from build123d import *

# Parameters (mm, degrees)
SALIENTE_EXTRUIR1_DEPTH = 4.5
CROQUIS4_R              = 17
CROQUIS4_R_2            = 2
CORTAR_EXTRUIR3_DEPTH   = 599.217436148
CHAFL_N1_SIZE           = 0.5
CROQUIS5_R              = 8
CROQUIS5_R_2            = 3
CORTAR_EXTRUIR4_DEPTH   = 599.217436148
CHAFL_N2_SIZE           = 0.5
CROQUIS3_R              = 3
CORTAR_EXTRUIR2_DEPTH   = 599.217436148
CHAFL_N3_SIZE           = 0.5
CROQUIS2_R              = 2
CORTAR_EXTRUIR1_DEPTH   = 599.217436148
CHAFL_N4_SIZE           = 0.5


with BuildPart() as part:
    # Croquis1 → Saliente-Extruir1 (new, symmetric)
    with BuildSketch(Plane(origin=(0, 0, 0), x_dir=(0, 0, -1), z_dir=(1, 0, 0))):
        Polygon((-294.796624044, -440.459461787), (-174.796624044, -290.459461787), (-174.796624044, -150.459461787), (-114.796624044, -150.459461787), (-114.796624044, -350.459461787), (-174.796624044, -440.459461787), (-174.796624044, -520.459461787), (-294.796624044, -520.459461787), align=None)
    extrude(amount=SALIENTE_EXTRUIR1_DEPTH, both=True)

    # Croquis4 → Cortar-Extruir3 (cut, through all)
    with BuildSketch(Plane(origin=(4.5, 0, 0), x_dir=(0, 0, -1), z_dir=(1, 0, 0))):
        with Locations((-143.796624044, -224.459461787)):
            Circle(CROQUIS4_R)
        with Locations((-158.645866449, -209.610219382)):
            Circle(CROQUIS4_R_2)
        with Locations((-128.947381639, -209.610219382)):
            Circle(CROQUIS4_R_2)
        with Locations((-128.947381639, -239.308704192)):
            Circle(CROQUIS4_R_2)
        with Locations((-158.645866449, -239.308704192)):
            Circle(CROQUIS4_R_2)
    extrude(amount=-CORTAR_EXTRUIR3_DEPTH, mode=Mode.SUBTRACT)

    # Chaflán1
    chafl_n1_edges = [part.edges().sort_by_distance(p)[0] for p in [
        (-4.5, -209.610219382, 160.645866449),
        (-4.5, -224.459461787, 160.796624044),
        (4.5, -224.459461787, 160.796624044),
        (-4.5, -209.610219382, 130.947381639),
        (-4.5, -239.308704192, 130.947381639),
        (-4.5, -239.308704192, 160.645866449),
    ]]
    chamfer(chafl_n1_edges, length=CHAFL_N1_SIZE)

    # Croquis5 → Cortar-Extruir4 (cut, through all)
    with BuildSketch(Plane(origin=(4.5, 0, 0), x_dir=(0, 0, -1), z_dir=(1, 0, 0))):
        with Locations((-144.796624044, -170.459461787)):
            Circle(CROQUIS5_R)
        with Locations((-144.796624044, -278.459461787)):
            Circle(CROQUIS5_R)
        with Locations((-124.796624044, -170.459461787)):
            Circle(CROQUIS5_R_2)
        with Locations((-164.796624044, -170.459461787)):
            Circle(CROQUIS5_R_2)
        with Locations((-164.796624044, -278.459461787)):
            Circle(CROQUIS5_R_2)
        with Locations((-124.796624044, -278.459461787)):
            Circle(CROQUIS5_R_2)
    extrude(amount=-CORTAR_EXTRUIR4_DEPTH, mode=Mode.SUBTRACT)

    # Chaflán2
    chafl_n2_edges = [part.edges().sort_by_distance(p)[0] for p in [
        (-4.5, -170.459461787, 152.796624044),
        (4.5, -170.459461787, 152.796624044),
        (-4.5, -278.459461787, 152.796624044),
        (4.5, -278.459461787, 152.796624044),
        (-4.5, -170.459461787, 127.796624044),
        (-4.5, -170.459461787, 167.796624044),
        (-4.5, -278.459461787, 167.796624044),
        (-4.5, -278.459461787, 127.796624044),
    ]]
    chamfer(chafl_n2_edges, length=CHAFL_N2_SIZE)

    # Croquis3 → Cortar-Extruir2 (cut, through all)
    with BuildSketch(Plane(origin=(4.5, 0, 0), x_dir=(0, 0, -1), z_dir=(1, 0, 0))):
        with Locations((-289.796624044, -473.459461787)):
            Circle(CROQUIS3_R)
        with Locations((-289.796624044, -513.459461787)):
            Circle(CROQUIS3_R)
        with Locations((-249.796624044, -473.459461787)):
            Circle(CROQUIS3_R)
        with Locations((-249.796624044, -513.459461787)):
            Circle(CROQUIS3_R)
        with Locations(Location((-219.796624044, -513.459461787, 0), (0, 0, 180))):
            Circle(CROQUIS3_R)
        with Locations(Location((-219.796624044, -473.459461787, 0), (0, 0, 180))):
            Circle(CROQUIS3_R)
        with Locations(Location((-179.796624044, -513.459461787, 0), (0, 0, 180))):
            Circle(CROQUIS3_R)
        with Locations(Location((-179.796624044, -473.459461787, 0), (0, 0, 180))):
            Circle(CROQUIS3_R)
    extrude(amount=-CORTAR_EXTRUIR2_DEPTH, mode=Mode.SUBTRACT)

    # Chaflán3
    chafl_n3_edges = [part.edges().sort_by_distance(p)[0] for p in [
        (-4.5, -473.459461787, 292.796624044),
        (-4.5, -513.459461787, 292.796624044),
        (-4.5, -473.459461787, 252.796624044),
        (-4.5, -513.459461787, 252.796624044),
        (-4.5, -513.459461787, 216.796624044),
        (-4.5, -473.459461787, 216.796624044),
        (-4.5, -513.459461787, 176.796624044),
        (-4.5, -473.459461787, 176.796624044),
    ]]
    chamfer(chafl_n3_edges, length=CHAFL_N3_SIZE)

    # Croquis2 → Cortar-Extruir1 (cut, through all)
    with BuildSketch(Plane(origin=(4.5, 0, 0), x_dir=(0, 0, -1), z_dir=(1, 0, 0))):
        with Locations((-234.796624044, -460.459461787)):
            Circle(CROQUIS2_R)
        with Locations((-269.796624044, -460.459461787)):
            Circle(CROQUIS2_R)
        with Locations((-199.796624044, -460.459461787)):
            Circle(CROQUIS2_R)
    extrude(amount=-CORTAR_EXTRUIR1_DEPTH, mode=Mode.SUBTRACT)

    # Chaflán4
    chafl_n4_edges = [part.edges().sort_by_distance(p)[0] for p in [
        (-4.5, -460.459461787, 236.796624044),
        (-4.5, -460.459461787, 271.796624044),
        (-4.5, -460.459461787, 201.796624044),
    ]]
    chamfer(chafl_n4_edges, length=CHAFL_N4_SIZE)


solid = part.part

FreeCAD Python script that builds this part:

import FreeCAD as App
import Part
import Sketcher
from FreeCAD import Vector
Q = App.Units.Quantity


def edges_at(feature, points):
    """Names of the edges that pass closest to the given points."""
    edges = feature.Shape.Edges
    near = lambda p: min(range(len(edges)), key=lambda i: edges[i].distToShape(Part.Vertex(*p))[0])
    return sorted({f"Edge{near(p) + 1}" for p in points})


def add_polygon(sketch, points):
    """Adds a closed chain of lines whose ends are joined by coincident constraints."""
    first, n = sketch.GeometryCount, len(points)
    for a, b in zip(points, points[1:] + points[:1]):
        sketch.addGeometry(Part.LineSegment(App.Vector(*a, 0), App.Vector(*b, 0)), False)
    for i in range(n):
        sketch.addConstraint(Sketcher.Constraint("Coincident", first + i, 2, first + (i + 1) % n, 1))

doc = App.newDocument("Part")
body = doc.addObject("PartDesign::Body", "Body")

# Sketch on YZ plane
sketch1 = body.newObject("Sketcher::SketchObject", "Sketch")
sketch1.AttachmentSupport = (doc.getObject("YZ_Plane"), [""])
sketch1.MapMode = "FlatFace"
add_polygon(sketch1, [(-290.459462, 174.796624), (-440.459462, 294.796624), (-520.459462, 294.796624), (-520.459462, 174.796624), (-440.459462, 174.796624), (-350.459462, 114.796624), (-150.459462, 114.796624), (-150.459462, 174.796624)])  # lines 0-7
sketch1.addConstraint([
    Sketcher.Constraint("Horizontal", 1),
    Sketcher.Constraint("Vertical", 2),
    Sketcher.Constraint("Horizontal", 3),
    Sketcher.Constraint("Horizontal", 5),
    Sketcher.Constraint("Vertical", 6),
    Sketcher.Constraint("Horizontal", 7),
    Sketcher.Constraint("Horizontal", 3, 2, 6, 2),
    Sketcher.Constraint("Vertical", 0, 2, 3, 2),
    Sketcher.Constraint("DistanceX", 1, 2, 1, 1, Q("80 mm")),
    Sketcher.Constraint("DistanceX", 5, 1, 5, 2, Q("200 mm")),
    Sketcher.Constraint("DistanceX", 7, 2, 7, 1, Q("140 mm")),
    Sketcher.Constraint("DistanceY", 2, 2, 2, 1, Q("120 mm")),
    Sketcher.Constraint("DistanceY", 6, 1, 6, 2, Q("60 mm")),
    Sketcher.Constraint("DistanceX", 3, 2, 4, 2, Q("90 mm")),
    Sketcher.Constraint("DistanceX", 0, 2, -1, 1, Q("440.459462 mm")),
    Sketcher.Constraint("DistanceY", -1, 1, 0, 2, Q("294.796624 mm")),
])
pad1 = body.newObject("PartDesign::Pad", "Pad")
pad1.Profile = sketch1
pad1.Length = 9
pad1.Midplane = True

# Sketch on YZ plane
sketch2 = body.newObject("Sketcher::SketchObject", "Sketch001")
sketch2.AttachmentSupport = (doc.getObject("YZ_Plane"), [""])
sketch2.MapMode = "FlatFace"
sketch2.AttachmentOffset = App.Placement(Vector(0, 0, 4.5), App.Rotation())
sketch2.addGeometry([
    Part.Circle(Vector(-224.459462, 143.796624, 0), Vector(0, 0, 1), 17),  # 0
    Part.Circle(Vector(-209.610219, 158.645866, 0), Vector(0, 0, 1), 2),  # 1
    Part.Circle(Vector(-209.610219, 128.947382, 0), Vector(0, 0, 1), 2),  # 2
    Part.Circle(Vector(-239.308704, 128.947382, 0), Vector(0, 0, 1), 2),  # 3
    Part.Circle(Vector(-239.308704, 158.645866, 0), Vector(0, 0, 1), 2),  # 4
], False)
sketch2.addConstraint([
    Sketcher.Constraint("Equal", 1, 2),
    Sketcher.Constraint("Equal", 2, 3),
    Sketcher.Constraint("Equal", 3, 4),
    Sketcher.Constraint("Horizontal", 2, 3, 3, 3),
    Sketcher.Constraint("Horizontal", 1, 3, 4, 3),
    Sketcher.Constraint("Vertical", 1, 3, 2, 3),
    Sketcher.Constraint("Vertical", 3, 3, 4, 3),
    Sketcher.Constraint("Diameter", 0, Q("34 mm")),
    Sketcher.Constraint("Diameter", 1, Q("4 mm")),
    Sketcher.Constraint("DistanceX", 0, 3, -1, 1, Q("224.459462 mm")),
    Sketcher.Constraint("DistanceX", 1, 3, -1, 1, Q("209.610219 mm")),
    Sketcher.Constraint("DistanceY", -1, 1, 2, 3, Q("128.947382 mm")),
    Sketcher.Constraint("DistanceY", -1, 1, 0, 3, Q("143.796624 mm")),
    Sketcher.Constraint("DistanceY", -1, 1, 1, 3, Q("158.645866 mm")),
    Sketcher.Constraint("DistanceX", 3, 3, -1, 1, Q("239.308704 mm")),
])
pocket1 = body.newObject("PartDesign::Pocket", "Pocket")
pocket1.Profile = sketch2
pocket1.Type = "ThroughAll"
doc.recompute()

chamfer = body.newObject("PartDesign::Chamfer", "Chamfer")
chamfer.Base = (pocket1, edges_at(pocket1, [
    (-4.5, -209.61, 160.646),
    (-4.5, -224.459, 160.797),
    (4.5, -224.459, 160.797),
    (-4.5, -209.61, 130.947),
    (-4.5, -239.309, 130.947),
    (-4.5, -239.309, 160.646),
]))
chamfer.Size = 0.5

# Sketch on YZ plane
sketch3 = body.newObject("Sketcher::SketchObject", "Sketch002")
sketch3.AttachmentSupport = (doc.getObject("YZ_Plane"), [""])
sketch3.MapMode = "FlatFace"
sketch3.AttachmentOffset = App.Placement(Vector(0, 0, 4.5), App.Rotation())
sketch3.addGeometry([
    Part.Circle(Vector(-170.459462, 144.796624, 0), Vector(0, 0, 1), 8),  # 0
    Part.Circle(Vector(-278.459462, 144.796624, 0), Vector(0, 0, 1), 8),  # 1
    Part.Circle(Vector(-170.459462, 124.796624, 0), Vector(0, 0, 1), 3),  # 2
    Part.Circle(Vector(-170.459462, 164.796624, 0), Vector(0, 0, 1), 3),  # 3
    Part.Circle(Vector(-278.459462, 164.796624, 0), Vector(0, 0, 1), 3),  # 4
    Part.Circle(Vector(-278.459462, 124.796624, 0), Vector(0, 0, 1), 3),  # 5
], False)
sketch3.addConstraint([
    Sketcher.Constraint("Equal", 0, 1),
    Sketcher.Constraint("Equal", 2, 3),
    Sketcher.Constraint("Equal", 3, 4),
    Sketcher.Constraint("Equal", 4, 5),
    Sketcher.Constraint("Horizontal", 0, 3, 1, 3),
    Sketcher.Constraint("Horizontal", 3, 3, 4, 3),
    Sketcher.Constraint("Horizontal", 2, 3, 5, 3),
    Sketcher.Constraint("Vertical", 0, 3, 2, 3),
    Sketcher.Constraint("Vertical", 2, 3, 3, 3),
    Sketcher.Constraint("Vertical", 1, 3, 4, 3),
    Sketcher.Constraint("Vertical", 4, 3, 5, 3),
    Sketcher.Constraint("Diameter", 0, Q("16 mm")),
    Sketcher.Constraint("Diameter", 2, Q("6 mm")),
    Sketcher.Constraint("DistanceX", 1, 3, 0, 3, Q("108 mm")),
    Sketcher.Constraint("DistanceY", 2, 3, 0, 3, Q("20 mm")),
    Sketcher.Constraint("DistanceY", 0, 3, 3, 3, Q("20 mm")),
    Sketcher.Constraint("DistanceX", 0, 3, -1, 1, Q("170.459462 mm")),
    Sketcher.Constraint("DistanceY", -1, 1, 0, 3, Q("144.796624 mm")),
])
pocket2 = body.newObject("PartDesign::Pocket", "Pocket001")
pocket2.Profile = sketch3
pocket2.Type = "ThroughAll"
doc.recompute()

chamfer2 = body.newObject("PartDesign::Chamfer", "Chamfer001")
chamfer2.Base = (pocket2, edges_at(pocket2, [
    (-4.5, -170.459, 152.797),
    (4.5, -170.459, 152.797),
    (-4.5, -278.459, 152.797),
    (4.5, -278.459, 152.797),
    (-4.5, -170.459, 127.797),
    (-4.5, -170.459, 167.797),
    (-4.5, -278.459, 167.797),
    (-4.5, -278.459, 127.797),
]))
chamfer2.Size = 0.5

# Sketch on YZ plane
sketch4 = body.newObject("Sketcher::SketchObject", "Sketch003")
sketch4.AttachmentSupport = (doc.getObject("YZ_Plane"), [""])
sketch4.MapMode = "FlatFace"
sketch4.AttachmentOffset = App.Placement(Vector(0, 0, 4.5), App.Rotation())
sketch4.addGeometry([
    Part.Circle(Vector(-473.459462, 289.796624, 0), Vector(0, 0, 1), 3),  # 0
    Part.Circle(Vector(-513.459462, 289.796624, 0), Vector(0, 0, 1), 3),  # 1
    Part.Circle(Vector(-473.459462, 249.796624, 0), Vector(0, 0, 1), 3),  # 2
    Part.Circle(Vector(-513.459462, 249.796624, 0), Vector(0, 0, 1), 3),  # 3
    Part.Circle(Vector(-513.459462, 219.796624, 0), Vector(0, 0, 1), 3),  # 4
    Part.Circle(Vector(-473.459462, 219.796624, 0), Vector(0, 0, 1), 3),  # 5
    Part.Circle(Vector(-513.459462, 179.796624, 0), Vector(0, 0, 1), 3),  # 6
    Part.Circle(Vector(-473.459462, 179.796624, 0), Vector(0, 0, 1), 3),  # 7
], False)
sketch4.addConstraint([
    Sketcher.Constraint("Equal", 0, 1),
    Sketcher.Constraint("Equal", 1, 2),
    Sketcher.Constraint("Equal", 2, 3),
    Sketcher.Constraint("Equal", 3, 4),
    Sketcher.Constraint("Equal", 4, 5),
    Sketcher.Constraint("Equal", 5, 6),
    Sketcher.Constraint("Equal", 6, 7),
    Sketcher.Constraint("Horizontal", 0, 3, 1, 3),
    Sketcher.Constraint("Horizontal", 2, 3, 3, 3),
    Sketcher.Constraint("Horizontal", 4, 3, 5, 3),
    Sketcher.Constraint("Horizontal", 6, 3, 7, 3),
    Sketcher.Constraint("Vertical", 0, 3, 2, 3),
    Sketcher.Constraint("Vertical", 1, 3, 3, 3),
    Sketcher.Constraint("Vertical", 3, 3, 4, 3),
    Sketcher.Constraint("Vertical", 2, 3, 5, 3),
    Sketcher.Constraint("Vertical", 4, 3, 6, 3),
    Sketcher.Constraint("Vertical", 5, 3, 7, 3),
    Sketcher.Constraint("Diameter", 0, Q("6 mm")),
    Sketcher.Constraint("DistanceX", 1, 3, 0, 3, Q("40 mm")),
    Sketcher.Constraint("DistanceY", 2, 3, 0, 3, Q("40 mm")),
    Sketcher.Constraint("DistanceY", 4, 3, 3, 3, Q("30 mm")),
    Sketcher.Constraint("DistanceY", 6, 3, 4, 3, Q("40 mm")),
    Sketcher.Constraint("DistanceX", 0, 3, -1, 1, Q("473.459462 mm")),
    Sketcher.Constraint("DistanceY", -1, 1, 0, 3, Q("289.796624 mm")),
])
pocket3 = body.newObject("PartDesign::Pocket", "Pocket002")
pocket3.Profile = sketch4
pocket3.Type = "ThroughAll"
doc.recompute()

chamfer3 = body.newObject("PartDesign::Chamfer", "Chamfer002")
chamfer3.Base = (pocket3, edges_at(pocket3, [
    (-4.5, -473.459, 292.797),
    (-4.5, -513.459, 292.797),
    (-4.5, -473.459, 252.797),
    (-4.5, -513.459, 252.797),
    (-4.5, -513.459, 216.797),
    (-4.5, -473.459, 216.797),
    (-4.5, -513.459, 176.797),
    (-4.5, -473.459, 176.797),
]))
chamfer3.Size = 0.5

# Sketch on YZ plane
sketch5 = body.newObject("Sketcher::SketchObject", "Sketch004")
sketch5.AttachmentSupport = (doc.getObject("YZ_Plane"), [""])
sketch5.MapMode = "FlatFace"
sketch5.AttachmentOffset = App.Placement(Vector(0, 0, 4.5), App.Rotation())
sketch5.addGeometry([
    Part.Circle(Vector(-460.459462, 234.796624, 0), Vector(0, 0, 1), 2),
    Part.Circle(Vector(-460.459462, 269.796624, 0), Vector(0, 0, 1), 2),
    Part.Circle(Vector(-460.459462, 199.796624, 0), Vector(0, 0, 1), 2),
], False)
sketch5.addConstraint([
    Sketcher.Constraint("Equal", 0, 1),
    Sketcher.Constraint("Equal", 1, 2),
    Sketcher.Constraint("Vertical", 0, 3, 1, 3),
    Sketcher.Constraint("Vertical", 1, 3, 2, 3),
    Sketcher.Constraint("Diameter", 0, Q("4 mm")),
    Sketcher.Constraint("DistanceY", 0, 3, 1, 3, Q("35 mm")),
    Sketcher.Constraint("DistanceY", 2, 3, 0, 3, Q("35 mm")),
    Sketcher.Constraint("DistanceX", 0, 3, -1, 1, Q("460.459462 mm")),
    Sketcher.Constraint("DistanceY", -1, 1, 0, 3, Q("234.796624 mm")),
])
pocket4 = body.newObject("PartDesign::Pocket", "Pocket003")
pocket4.Profile = sketch5
pocket4.Type = "ThroughAll"
doc.recompute()

chamfer4 = body.newObject("PartDesign::Chamfer", "Chamfer003")
chamfer4.Base = (pocket4, edges_at(pocket4, [(-4.5, -460.459, 236.797), (-4.5, -460.459, 271.797), (-4.5, -460.459, 201.797)]))
chamfer4.Size = 0.5

doc.recompute()
